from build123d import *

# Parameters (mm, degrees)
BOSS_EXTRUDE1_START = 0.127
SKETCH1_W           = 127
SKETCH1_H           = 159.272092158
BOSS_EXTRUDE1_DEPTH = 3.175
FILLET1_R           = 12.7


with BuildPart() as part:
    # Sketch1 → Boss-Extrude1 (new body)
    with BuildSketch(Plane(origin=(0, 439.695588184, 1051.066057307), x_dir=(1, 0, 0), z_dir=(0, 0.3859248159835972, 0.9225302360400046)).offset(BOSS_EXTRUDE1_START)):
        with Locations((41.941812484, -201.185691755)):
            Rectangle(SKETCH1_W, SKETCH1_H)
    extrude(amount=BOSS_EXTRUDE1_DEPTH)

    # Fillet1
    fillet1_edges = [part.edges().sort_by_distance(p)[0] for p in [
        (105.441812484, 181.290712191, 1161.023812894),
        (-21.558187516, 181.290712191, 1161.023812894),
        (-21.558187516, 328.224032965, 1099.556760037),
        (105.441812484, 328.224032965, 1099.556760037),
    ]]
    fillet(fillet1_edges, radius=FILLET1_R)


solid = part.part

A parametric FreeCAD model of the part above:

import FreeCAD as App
import Part
import Sketcher

V = App.Vector
Q = App.Units.Quantity


def edges_at(feature, points):
    """Names of the edges that pass closest to the given points."""
    edges = feature.Shape.Edges
    near = lambda p: min(range(len(edges)), key=lambda i: edges[i].distToShape(Part.Vertex(*p))[0])
    return sorted({f"Edge{near(p) + 1}" for p in points})


def add_polygon(sketch, points):
    """Adds a closed chain of lines whose ends are joined by coincident constraints."""
    first, n = sketch.GeometryCount, len(points)
    for a, b in zip(points, points[1:] + points[:1]):
        sketch.addGeometry(Part.LineSegment(App.Vector(*a, 0), App.Vector(*b, 0)), False)
    for i in range(n):
        sketch.addConstraint(Sketcher.Constraint("Coincident", first + i, 2, first + (i + 1) % n, 1))

doc = App.newDocument("Part")
body = doc.addObject("PartDesign::Body", "Body")

# Sketch on an angled plane
sketch1 = doc.addObject("Sketcher::SketchObject", "Sketch")
body.addObject(sketch1)
sketch1.Placement = App.Placement(V(0, 439.744601, 1051.183219), App.Rotation(V(1, 0, 0), V(0, 0.922530236, -0.385924816), V(0, 0.385924816, 0.922530236), "ZXY"))
add_polygon(sketch1, [(-22, -122), (-22, -281), (105, -281), (105, -122)])  # lines 0-3
sketch1.addConstraint([
    Sketcher.Constraint("Vertical", 0),
    Sketcher.Constraint("Horizontal", 1),
    Sketcher.Constraint("Vertical", 2),
    Sketcher.Constraint("Horizontal", 3),
    Sketcher.Constraint("DistanceX", 1, 1, 1, 2, Q("5 in")),
    Sketcher.Constraint("DistanceY", 0, 2, 0, 1, 159.272092),
    Sketcher.Constraint("DistanceX", 0, 2, -1, 1, 21.558188),
    Sketcher.Constraint("DistanceY", 0, 2, -1, 1, 280.821738),
])
pad1 = doc.addObject("PartDesign::Pad", "Pad")
body.addObject(pad1)
pad1.Profile = sketch1
pad1.Length = Q("0.125 in")
doc.recompute()

fillet = doc.addObject("PartDesign::Fillet", "Fillet")
body.addObject(fillet)
fillet.Base = (pad1, edges_at(pad1, [
    (105.442, 181.291, 1161.024),
    (-21.558, 181.291, 1161.024),
    (-21.558, 328.224, 1099.557),
    (105.442, 328.224, 1099.557),
]))
fillet.Radius = Q("0.5 in")

doc.recompute()
